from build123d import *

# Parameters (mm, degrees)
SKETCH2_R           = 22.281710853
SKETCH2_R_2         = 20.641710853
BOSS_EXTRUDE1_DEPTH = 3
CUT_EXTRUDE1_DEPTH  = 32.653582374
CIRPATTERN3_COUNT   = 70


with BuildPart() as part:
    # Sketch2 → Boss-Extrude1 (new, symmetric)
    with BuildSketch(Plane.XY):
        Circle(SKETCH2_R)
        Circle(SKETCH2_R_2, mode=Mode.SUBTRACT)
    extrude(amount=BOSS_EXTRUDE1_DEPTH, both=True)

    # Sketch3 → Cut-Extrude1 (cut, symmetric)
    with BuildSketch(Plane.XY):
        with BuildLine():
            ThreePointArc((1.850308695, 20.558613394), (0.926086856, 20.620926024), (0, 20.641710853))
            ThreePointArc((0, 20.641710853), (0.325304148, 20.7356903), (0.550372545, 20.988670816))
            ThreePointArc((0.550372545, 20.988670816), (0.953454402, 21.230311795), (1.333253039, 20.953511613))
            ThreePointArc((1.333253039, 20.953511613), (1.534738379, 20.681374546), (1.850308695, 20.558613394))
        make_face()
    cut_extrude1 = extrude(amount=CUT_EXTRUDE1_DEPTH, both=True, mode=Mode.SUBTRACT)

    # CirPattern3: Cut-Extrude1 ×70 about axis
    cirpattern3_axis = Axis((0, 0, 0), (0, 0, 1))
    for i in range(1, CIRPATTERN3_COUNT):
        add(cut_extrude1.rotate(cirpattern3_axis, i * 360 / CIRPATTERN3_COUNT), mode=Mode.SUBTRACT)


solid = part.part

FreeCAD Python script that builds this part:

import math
import FreeCAD as App
import Part
import Sketcher

V = App.Vector

doc = App.newDocument("Part")
body = doc.addObject("PartDesign::Body", "Body")

# Sketch on XY plane
sketch1 = doc.addObject("Sketcher::SketchObject", "Sketch")
body.addObject(sketch1)
sketch1.AttachmentSupport = (doc.XY_Plane, [""])
sketch1.MapMode = "FlatFace"
sketch1.addGeometry(Part.Circle(V(0, 0, 0), V(0, 0, 1), 22), False)
sketch1.addGeometry(Part.Circle(V(0, 0, 0), V(0, 0, 1), 21), False)
sketch1.addConstraint(Sketcher.Constraint("Coincident", 0, 3, -1, 1))
sketch1.addConstraint(Sketcher.Constraint("Coincident", 1, 3, -1, 1))
sketch1.addConstraint(Sketcher.Constraint("Diameter", 0, 44.563422))
sketch1.addConstraint(Sketcher.Constraint("Diameter", 1, 41.283422))
pad1 = doc.addObject("PartDesign::Pad", "Pad")
body.addObject(pad1)
pad1.Profile = sketch1
pad1.Length = 6
pad1.Midplane = True

# Sketch on XY plane
sketch2 = doc.addObject("Sketcher::SketchObject", "Sketch001")
body.addObject(sketch2)
sketch2.AttachmentSupport = (doc.XY_Plane, [""])
sketch2.MapMode = "FlatFace"
sketch2.addGeometry(Part.ArcOfCircle(Part.Circle(V(0, 0, 0), V(0, 0, 1), 20.64), math.radians(84.86), math.radians(90)), False)
sketch2.addGeometry(Part.ArcOfCircle(Part.Circle(V(1.9, 21.17, 0), V(0, 0, 1), 0.61), math.radians(-160), math.radians(-95)), False)
sketch2.addGeometry(Part.ArcOfCircle(Part.Circle(V(0.93, 20.81, 0), V(0, 0, 1), 0.43), math.radians(20), math.radians(154)), False)
sketch2.addGeometry(Part.ArcOfCircle(Part.Circle(V(0, 21.25, 0), V(0, 0, 1), 0.61), math.radians(-90), math.radians(-26)), False)
sketch2.addConstraint(Sketcher.Constraint("Tangent", 0, 1, 1, 2))
sketch2.addConstraint(Sketcher.Constraint("Tangent", 1, 1, 2, 1))
sketch2.addConstraint(Sketcher.Constraint("Tangent", 2, 2, 3, 2))
sketch2.addConstraint(Sketcher.Constraint("Tangent", 3, 1, 0, 2))
sketch2.addConstraint(Sketcher.Constraint("Coincident", 0, 3, -1, 1))
sketch2.addConstraint(Sketcher.Constraint("Equal", 1, 3))
sketch2.addConstraint(Sketcher.Constraint("PointOnObject", 3, 3, -2))
sketch2.addConstraint(Sketcher.Constraint("Radius", 1, 0.61))
sketch2.addConstraint(Sketcher.Constraint("Radius", 0, 20.641711))
sketch2.addConstraint(Sketcher.Constraint("Radius", 2, 0.425589))
sketch2.addConstraint(Sketcher.Constraint("DistanceY", 0, 1, 1, 1, 0.394898))
pocket1 = doc.addObject("PartDesign::Pocket", "Pocket")
body.addObject(pocket1)
pocket1.Profile = sketch2
pocket1.Length = 65.307165
pocket1.Midplane = True
doc.recompute()

polarpattern = doc.addObject("PartDesign::PolarPattern", "PolarPattern")
body.addObject(polarpattern)
polarpattern.Originals = [pocket1]
polarpattern.Axis = (doc.Z_Axis, [""])
polarpattern.Angle = 360
polarpattern.Occurrences = 70
body.Tip = polarpattern

doc.recompute()
